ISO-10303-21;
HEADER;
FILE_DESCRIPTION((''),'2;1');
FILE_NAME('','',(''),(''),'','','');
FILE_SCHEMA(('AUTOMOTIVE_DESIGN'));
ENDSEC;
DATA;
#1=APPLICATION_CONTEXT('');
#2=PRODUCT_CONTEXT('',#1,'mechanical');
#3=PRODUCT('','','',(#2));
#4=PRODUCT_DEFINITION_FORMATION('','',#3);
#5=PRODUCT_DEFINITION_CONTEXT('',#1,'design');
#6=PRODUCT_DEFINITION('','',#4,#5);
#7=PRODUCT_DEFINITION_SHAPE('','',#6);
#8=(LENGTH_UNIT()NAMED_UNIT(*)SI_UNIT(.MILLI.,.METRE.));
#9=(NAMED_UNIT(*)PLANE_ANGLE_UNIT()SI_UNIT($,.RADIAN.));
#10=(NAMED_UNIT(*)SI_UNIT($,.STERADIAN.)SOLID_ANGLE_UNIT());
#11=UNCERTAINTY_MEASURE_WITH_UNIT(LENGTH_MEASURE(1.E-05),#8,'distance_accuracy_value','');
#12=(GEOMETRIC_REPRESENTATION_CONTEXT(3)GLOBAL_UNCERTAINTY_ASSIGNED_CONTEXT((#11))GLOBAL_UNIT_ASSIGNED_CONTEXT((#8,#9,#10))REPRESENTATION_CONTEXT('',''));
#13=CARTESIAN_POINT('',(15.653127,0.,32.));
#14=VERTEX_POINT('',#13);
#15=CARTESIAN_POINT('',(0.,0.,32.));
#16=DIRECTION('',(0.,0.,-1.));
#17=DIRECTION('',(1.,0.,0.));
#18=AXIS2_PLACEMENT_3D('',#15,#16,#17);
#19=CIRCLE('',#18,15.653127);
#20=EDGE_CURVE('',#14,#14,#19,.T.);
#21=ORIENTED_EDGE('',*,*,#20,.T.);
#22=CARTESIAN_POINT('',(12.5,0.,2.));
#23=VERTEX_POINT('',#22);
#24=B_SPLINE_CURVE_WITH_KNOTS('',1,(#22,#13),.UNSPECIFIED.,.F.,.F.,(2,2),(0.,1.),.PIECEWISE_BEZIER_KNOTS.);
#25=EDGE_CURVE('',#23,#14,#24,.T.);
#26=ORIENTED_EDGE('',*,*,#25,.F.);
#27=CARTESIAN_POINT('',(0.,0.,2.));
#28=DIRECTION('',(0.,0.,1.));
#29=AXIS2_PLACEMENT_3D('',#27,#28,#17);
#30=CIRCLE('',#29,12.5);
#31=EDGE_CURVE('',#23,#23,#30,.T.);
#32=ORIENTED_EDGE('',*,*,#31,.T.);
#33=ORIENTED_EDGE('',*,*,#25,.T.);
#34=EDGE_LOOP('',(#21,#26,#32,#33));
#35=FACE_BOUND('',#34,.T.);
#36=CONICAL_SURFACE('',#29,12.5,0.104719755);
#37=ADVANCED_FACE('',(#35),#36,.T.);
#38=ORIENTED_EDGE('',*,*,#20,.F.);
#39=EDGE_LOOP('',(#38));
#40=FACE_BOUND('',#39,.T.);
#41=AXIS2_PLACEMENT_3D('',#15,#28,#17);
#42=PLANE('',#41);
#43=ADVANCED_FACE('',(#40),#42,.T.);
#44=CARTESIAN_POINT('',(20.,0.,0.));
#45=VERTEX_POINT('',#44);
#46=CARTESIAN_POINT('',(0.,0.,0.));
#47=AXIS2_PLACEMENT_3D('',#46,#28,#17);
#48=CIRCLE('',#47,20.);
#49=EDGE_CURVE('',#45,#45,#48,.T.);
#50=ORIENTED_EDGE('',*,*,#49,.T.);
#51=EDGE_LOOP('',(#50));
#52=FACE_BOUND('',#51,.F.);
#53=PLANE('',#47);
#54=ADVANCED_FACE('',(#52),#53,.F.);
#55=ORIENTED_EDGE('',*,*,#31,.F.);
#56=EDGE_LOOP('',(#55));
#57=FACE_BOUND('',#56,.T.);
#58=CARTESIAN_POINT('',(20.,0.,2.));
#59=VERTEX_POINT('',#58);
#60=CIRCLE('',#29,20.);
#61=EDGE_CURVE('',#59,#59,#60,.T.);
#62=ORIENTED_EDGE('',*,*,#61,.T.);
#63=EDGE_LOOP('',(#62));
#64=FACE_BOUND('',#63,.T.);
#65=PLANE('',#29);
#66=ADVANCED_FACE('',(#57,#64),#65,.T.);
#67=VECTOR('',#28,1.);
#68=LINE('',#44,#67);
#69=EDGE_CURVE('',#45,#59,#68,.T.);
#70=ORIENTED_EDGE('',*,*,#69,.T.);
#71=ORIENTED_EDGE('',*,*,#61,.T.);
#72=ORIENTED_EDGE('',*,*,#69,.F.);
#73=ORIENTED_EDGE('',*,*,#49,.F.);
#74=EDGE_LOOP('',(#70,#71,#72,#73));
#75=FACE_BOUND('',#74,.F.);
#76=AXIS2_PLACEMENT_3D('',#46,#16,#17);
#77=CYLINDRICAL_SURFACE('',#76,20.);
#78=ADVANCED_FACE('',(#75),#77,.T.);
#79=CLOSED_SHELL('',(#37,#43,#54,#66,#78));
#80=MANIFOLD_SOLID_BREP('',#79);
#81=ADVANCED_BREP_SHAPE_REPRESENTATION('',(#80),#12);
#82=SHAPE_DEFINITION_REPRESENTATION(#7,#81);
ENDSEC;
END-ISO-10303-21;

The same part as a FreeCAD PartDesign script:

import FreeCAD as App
import Part
import Sketcher

V = App.Vector
Q = App.Units.Quantity

doc = App.newDocument("Part")
params = doc.addObject("Spreadsheet::Sheet", "Params")
for row, (alias, value) in enumerate([
    ("sketch1_diameter", "40 mm"),
    ("pad1_length", "2 mm"),
    ("sketch2_diameter", "25 mm"),
    ("pad2_length", "30 mm"),
    ("pad2_taper", "6 deg"),
], start=1):
    params.set(f"A{row}", alias)
    params.set(f"B{row}", "=" + value)
    params.setAlias(f"B{row}", alias)

body = doc.addObject("PartDesign::Body", "Body")

# Sketch on XY plane
sketch1 = body.newObject("Sketcher::SketchObject", "Sketch")
sketch1.AttachmentSupport = (doc.getObject("XY_Plane"), [""])
sketch1.MapMode = "FlatFace"
sketch1.addGeometry(Part.Circle(V(0, 0, 0), V(0, 0, 1), 20), False)
sketch1.addConstraint([
    Sketcher.Constraint("Coincident", 0, 3, -1, 1),
    Sketcher.Constraint("Diameter", 0, Q("40 mm")),
])
sketch1.setExpression("Constraints[1]", "Params.sketch1_diameter")
pad1 = body.newObject("PartDesign::Pad", "Pad")
pad1.Profile = sketch1
pad1.setExpression("Length", "Params.pad1_length")

# Sketch on XY plane
sketch2 = body.newObject("Sketcher::SketchObject", "Sketch001")
sketch2.AttachmentSupport = (doc.getObject("XY_Plane"), [""])
sketch2.MapMode = "FlatFace"
sketch2.AttachmentOffset = App.Placement(V(0, 0, 2), App.Rotation())
sketch2.addGeometry(Part.Circle(V(0, 0, 0), V(0, 0, 1), 12.5), False)
sketch2.addConstraint([
    Sketcher.Constraint("Coincident", 0, 3, -1, 1),
    Sketcher.Constraint("Diameter", 0, Q("25 mm")),
])
sketch2.setExpression("Constraints[1]", "Params.sketch2_diameter")
pad2 = body.newObject("PartDesign::Pad", "Pad001")
pad2.Profile = sketch2
pad2.setExpression("Length", "Params.pad2_length")
pad2.setExpression("TaperAngle", "Params.pad2_taper")

doc.recompute()
